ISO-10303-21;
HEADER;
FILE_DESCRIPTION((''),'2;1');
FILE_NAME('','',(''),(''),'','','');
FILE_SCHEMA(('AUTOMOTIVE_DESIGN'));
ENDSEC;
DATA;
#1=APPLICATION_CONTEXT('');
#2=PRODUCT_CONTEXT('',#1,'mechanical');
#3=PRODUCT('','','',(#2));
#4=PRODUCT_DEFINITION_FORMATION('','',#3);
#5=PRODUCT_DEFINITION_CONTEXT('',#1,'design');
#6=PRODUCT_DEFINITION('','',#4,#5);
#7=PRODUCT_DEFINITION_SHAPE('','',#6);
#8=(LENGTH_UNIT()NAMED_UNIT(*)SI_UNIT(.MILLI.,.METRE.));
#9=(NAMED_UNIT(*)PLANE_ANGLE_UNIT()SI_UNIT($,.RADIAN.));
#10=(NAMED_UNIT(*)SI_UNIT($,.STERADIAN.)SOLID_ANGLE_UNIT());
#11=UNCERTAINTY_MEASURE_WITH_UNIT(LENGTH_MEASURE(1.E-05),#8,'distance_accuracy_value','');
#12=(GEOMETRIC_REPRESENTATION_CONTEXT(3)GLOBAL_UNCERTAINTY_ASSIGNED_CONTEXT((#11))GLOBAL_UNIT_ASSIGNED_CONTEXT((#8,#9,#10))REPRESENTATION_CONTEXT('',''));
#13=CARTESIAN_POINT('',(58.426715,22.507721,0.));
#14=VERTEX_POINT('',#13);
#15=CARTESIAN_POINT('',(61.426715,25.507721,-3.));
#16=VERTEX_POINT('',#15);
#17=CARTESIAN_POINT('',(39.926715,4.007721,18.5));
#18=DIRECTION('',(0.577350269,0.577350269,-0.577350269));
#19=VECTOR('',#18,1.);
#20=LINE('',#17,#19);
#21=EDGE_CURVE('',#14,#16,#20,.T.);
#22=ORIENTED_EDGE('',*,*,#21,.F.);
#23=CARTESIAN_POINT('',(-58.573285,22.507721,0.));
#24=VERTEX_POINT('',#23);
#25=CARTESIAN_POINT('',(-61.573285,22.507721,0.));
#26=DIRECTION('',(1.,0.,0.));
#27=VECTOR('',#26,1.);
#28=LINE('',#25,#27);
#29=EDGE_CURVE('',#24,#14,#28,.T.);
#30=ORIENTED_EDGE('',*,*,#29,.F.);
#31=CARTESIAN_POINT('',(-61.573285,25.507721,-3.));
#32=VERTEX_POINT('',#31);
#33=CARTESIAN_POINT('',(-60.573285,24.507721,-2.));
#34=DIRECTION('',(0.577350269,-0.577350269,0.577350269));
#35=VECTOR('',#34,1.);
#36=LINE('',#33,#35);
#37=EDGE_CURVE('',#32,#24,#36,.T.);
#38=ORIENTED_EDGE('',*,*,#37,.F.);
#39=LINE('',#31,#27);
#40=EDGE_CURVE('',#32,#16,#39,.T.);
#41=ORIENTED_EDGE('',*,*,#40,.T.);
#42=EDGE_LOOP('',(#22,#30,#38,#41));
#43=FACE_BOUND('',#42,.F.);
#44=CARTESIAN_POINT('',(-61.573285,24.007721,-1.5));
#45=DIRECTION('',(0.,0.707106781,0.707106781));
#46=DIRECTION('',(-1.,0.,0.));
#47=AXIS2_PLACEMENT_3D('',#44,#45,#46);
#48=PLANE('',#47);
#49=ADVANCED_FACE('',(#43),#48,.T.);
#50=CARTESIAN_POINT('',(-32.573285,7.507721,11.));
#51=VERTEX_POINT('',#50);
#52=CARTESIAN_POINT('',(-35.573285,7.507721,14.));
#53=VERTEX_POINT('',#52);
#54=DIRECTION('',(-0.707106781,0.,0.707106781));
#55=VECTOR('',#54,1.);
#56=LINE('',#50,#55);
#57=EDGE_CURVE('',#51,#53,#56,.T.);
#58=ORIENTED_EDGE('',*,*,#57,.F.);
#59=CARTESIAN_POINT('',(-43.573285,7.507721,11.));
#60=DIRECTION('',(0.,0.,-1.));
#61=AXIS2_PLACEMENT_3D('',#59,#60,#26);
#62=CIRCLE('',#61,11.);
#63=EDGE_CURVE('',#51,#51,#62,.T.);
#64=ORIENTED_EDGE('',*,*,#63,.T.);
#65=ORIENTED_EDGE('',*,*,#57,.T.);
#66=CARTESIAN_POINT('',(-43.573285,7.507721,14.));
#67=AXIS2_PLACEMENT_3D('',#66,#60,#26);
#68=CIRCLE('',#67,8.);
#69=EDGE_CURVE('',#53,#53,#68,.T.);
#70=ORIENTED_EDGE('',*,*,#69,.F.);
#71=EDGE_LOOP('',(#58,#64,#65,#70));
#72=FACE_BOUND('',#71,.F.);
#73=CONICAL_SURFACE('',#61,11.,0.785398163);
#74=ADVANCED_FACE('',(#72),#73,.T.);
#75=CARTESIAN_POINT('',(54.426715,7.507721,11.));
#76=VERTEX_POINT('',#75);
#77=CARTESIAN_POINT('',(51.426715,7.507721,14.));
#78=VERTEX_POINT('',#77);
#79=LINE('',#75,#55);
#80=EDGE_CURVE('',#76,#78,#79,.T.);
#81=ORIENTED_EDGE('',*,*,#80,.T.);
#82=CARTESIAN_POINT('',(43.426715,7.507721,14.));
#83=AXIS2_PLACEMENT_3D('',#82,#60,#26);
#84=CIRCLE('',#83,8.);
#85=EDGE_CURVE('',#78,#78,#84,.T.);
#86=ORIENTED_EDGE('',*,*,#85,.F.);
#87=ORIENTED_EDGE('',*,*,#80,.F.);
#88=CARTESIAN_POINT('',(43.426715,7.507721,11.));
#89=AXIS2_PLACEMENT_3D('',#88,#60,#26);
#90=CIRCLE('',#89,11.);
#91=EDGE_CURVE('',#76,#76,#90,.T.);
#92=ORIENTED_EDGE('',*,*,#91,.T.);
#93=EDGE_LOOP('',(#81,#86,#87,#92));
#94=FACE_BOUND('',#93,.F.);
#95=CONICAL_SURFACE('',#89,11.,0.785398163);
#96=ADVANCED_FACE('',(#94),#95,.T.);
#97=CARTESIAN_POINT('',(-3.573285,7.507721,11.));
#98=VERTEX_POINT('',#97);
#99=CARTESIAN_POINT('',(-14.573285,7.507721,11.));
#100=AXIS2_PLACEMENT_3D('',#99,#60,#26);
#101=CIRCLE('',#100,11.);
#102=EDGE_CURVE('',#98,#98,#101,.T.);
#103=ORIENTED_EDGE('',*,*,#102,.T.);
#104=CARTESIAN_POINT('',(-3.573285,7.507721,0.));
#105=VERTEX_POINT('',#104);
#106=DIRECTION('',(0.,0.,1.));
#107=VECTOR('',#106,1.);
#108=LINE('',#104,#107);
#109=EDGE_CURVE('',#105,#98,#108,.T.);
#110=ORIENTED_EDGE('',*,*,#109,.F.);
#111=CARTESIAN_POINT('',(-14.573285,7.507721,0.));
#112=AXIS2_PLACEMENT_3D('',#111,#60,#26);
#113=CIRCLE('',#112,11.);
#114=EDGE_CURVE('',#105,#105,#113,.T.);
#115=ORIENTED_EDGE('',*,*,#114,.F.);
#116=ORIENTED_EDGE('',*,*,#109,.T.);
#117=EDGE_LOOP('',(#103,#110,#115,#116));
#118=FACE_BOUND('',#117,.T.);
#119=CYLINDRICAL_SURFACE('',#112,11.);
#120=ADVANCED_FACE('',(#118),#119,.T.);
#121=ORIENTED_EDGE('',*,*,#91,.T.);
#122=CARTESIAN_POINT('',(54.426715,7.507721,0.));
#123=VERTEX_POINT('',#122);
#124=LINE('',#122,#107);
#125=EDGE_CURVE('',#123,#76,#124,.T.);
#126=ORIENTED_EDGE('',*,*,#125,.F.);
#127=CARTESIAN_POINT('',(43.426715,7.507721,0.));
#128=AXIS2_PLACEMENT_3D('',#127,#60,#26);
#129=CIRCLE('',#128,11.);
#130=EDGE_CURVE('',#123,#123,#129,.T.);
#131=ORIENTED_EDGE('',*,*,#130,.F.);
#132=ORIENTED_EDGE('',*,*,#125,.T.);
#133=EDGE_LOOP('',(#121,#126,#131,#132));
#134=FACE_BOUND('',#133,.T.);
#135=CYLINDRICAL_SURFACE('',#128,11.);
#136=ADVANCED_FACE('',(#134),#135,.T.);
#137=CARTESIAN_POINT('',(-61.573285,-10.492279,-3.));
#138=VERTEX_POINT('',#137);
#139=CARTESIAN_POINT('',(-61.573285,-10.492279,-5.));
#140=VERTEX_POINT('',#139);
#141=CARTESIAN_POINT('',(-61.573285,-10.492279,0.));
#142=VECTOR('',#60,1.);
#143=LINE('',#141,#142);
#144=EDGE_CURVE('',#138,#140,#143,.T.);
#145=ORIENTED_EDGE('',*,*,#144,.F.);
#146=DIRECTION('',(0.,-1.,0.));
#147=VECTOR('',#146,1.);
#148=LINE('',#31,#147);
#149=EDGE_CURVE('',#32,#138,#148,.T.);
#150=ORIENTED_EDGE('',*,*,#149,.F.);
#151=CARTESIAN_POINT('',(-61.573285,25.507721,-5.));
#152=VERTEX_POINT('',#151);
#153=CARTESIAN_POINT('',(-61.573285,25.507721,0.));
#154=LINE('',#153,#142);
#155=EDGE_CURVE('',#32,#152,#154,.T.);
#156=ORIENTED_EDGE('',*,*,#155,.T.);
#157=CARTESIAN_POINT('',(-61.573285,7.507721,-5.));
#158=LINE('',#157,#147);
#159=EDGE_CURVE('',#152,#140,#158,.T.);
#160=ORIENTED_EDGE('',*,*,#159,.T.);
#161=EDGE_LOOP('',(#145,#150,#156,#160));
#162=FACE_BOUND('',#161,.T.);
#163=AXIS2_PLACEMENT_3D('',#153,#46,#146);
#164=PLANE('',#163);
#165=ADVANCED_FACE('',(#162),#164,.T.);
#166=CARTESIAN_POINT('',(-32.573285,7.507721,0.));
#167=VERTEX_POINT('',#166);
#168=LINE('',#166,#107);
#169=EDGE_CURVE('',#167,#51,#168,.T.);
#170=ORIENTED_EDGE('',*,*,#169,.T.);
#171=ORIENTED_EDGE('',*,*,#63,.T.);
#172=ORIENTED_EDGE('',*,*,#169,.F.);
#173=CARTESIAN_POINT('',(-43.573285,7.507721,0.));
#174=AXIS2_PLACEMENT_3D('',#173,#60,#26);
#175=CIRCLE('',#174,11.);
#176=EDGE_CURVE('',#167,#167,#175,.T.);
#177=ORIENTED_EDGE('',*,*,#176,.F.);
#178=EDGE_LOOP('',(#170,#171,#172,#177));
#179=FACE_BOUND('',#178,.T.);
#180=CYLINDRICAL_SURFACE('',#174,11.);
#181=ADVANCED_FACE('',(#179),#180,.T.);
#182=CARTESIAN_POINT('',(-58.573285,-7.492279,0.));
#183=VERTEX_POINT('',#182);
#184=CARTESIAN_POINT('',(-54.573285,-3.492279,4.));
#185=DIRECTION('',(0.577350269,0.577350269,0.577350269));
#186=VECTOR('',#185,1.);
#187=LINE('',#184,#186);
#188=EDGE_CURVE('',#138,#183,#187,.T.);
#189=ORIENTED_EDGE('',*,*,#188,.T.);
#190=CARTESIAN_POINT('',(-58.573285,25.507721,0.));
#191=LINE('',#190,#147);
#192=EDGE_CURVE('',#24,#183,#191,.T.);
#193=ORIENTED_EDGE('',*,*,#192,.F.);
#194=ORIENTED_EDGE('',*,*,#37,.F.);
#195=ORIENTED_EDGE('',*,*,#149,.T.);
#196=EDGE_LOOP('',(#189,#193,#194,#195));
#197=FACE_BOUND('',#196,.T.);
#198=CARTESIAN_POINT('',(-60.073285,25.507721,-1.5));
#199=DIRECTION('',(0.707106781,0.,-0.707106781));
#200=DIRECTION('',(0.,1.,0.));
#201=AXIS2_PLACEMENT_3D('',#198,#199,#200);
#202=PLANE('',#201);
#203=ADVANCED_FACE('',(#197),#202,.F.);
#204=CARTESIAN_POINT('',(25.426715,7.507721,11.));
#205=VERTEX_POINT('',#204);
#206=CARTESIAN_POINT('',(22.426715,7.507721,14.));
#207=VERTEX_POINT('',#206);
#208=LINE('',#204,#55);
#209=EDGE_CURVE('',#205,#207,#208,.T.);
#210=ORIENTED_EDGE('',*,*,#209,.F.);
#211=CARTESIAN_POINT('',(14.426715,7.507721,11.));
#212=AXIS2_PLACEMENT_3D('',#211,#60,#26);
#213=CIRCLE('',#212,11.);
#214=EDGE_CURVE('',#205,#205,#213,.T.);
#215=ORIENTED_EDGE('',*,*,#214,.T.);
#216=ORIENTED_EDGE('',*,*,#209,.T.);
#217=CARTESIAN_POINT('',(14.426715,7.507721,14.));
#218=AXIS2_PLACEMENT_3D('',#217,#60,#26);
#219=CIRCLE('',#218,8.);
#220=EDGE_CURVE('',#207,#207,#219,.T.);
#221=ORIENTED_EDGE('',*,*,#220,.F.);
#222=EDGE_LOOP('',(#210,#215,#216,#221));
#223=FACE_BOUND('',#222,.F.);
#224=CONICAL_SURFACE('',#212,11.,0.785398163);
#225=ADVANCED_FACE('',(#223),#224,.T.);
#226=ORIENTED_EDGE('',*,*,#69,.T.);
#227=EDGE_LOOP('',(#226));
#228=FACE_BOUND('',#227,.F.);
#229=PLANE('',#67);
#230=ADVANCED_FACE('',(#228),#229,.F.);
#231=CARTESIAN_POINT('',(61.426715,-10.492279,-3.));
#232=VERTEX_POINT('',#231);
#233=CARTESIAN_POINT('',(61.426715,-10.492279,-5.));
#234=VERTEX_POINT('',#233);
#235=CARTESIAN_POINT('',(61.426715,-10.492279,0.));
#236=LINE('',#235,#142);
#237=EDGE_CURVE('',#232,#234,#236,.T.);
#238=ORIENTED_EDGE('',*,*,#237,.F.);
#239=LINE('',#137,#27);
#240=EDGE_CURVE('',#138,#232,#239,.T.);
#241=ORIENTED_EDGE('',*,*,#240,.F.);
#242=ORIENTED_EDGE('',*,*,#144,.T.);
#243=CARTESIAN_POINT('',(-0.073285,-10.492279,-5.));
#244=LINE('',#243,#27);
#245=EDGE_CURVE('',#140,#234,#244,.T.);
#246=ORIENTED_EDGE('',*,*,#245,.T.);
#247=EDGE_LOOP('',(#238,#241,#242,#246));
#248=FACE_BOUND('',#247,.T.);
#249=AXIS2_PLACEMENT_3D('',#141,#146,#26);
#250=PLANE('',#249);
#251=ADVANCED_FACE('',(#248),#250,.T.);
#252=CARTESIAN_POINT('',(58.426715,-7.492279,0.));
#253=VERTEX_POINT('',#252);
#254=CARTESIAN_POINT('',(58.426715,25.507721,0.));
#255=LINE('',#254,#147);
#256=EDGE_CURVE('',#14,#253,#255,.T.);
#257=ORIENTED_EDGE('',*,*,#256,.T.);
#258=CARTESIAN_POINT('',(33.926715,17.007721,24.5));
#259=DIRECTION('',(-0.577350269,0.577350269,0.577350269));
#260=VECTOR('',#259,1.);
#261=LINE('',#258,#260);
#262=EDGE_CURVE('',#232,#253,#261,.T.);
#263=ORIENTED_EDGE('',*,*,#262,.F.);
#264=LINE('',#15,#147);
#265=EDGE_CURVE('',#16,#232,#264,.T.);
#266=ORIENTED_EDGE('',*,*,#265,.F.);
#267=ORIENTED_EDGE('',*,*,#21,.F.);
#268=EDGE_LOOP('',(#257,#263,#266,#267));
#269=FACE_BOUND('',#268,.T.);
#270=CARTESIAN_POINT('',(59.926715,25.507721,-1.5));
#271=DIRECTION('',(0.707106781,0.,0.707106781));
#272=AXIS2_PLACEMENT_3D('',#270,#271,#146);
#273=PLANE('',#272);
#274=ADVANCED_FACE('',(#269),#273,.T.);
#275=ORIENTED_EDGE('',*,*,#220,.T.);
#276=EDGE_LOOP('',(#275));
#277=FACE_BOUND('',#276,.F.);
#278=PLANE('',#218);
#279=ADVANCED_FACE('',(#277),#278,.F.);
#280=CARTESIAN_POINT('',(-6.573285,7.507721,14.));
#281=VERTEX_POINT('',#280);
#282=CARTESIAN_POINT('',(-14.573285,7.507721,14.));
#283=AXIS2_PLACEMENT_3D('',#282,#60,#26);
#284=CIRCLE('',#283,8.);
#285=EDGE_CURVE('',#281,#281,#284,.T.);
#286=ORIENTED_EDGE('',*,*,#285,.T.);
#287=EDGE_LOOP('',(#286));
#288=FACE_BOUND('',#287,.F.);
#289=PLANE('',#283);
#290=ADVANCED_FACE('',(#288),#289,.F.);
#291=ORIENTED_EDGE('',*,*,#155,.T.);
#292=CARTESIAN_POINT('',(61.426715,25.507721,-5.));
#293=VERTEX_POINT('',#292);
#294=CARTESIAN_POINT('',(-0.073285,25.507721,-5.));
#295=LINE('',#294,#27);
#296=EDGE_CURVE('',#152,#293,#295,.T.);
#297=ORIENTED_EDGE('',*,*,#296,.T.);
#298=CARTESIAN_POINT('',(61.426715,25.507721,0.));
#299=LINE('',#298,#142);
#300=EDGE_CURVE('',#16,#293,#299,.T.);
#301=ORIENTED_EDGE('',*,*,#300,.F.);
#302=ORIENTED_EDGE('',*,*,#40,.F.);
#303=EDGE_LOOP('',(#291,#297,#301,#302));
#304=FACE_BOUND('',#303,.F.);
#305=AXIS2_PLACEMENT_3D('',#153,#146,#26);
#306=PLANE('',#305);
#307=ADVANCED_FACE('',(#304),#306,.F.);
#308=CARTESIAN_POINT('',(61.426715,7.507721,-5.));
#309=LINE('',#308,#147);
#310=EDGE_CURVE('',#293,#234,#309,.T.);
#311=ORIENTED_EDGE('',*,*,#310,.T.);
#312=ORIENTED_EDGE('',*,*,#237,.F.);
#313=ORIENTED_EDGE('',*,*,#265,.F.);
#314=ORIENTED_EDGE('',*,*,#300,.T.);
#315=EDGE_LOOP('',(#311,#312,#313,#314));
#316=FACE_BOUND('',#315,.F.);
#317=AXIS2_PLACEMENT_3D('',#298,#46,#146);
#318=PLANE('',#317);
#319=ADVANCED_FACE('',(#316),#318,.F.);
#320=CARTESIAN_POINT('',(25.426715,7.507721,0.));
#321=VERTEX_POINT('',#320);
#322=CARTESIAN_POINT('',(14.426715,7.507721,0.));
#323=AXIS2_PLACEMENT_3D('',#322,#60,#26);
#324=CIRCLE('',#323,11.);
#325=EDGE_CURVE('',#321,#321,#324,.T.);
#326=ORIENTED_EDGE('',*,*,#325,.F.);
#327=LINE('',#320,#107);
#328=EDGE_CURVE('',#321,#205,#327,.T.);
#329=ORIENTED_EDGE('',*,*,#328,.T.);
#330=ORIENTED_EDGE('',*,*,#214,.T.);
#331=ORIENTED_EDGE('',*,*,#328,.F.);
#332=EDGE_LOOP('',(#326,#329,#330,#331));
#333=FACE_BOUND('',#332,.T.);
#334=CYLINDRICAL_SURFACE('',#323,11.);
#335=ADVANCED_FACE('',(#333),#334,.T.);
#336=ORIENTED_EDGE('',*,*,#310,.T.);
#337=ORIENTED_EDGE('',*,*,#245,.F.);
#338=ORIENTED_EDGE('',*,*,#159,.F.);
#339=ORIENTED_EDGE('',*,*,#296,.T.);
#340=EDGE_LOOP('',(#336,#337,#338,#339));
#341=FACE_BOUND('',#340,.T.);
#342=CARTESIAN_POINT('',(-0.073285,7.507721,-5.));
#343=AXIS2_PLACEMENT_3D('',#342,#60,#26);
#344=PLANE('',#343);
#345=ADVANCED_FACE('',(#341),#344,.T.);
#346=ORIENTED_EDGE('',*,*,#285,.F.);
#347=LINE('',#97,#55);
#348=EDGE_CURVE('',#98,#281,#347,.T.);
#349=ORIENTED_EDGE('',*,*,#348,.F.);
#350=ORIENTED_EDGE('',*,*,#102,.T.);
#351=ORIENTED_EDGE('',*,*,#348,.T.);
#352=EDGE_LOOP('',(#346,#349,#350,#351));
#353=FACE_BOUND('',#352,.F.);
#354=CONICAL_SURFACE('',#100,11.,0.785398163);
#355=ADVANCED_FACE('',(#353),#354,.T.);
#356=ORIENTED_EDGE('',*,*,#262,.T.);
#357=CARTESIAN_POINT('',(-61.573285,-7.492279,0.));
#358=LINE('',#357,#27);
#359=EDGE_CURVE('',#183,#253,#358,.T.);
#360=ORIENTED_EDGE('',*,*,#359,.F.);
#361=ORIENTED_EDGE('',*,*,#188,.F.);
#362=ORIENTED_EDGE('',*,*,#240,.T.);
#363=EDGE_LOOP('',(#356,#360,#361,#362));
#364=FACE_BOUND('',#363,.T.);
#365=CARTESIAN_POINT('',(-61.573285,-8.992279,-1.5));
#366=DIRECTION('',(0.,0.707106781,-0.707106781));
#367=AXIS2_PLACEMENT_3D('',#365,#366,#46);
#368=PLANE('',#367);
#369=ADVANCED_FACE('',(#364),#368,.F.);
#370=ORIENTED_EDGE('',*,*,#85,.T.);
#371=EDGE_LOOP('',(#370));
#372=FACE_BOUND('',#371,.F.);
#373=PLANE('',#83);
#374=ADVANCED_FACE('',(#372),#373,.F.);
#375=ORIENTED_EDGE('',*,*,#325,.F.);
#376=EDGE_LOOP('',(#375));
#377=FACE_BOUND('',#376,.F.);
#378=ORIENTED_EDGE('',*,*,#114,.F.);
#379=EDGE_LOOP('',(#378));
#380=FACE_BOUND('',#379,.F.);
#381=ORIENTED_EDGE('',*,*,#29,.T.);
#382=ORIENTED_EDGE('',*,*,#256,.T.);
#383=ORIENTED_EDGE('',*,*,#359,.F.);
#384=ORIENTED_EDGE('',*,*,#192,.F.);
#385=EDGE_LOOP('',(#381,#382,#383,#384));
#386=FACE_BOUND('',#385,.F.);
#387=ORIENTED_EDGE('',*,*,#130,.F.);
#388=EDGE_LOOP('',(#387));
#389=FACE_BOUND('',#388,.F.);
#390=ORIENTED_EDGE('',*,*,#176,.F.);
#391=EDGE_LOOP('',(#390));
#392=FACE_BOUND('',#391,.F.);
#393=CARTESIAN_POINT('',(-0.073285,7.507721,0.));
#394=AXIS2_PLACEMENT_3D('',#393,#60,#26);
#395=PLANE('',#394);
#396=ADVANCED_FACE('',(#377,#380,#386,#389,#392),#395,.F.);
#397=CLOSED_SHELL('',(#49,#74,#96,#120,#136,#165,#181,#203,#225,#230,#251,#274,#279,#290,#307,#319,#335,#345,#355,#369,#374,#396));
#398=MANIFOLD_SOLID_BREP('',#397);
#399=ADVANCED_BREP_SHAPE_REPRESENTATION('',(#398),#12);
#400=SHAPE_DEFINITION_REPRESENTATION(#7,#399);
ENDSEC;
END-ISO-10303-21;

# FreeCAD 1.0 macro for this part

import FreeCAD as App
import Part
import Sketcher
from FreeCAD import Vector


def edges_at(feature, points):
    """Names of the edges that pass closest to the given points."""
    edges = feature.Shape.Edges
    near = lambda p: min(range(len(edges)), key=lambda i: edges[i].distToShape(Part.Vertex(*p))[0])
    return sorted({f"Edge{near(p) + 1}" for p in points})

doc = App.newDocument("Part")
body = doc.addObject("PartDesign::Body", "Body")

# Sketch on XY plane
sketch1 = doc.addObject("Sketcher::SketchObject", "Sketch")
body.addObject(sketch1)
sketch1.AttachmentSupport = (doc.XY_Plane, [""])
sketch1.MapMode = "FlatFace"
sketch1.addGeometry(Part.LineSegment(Vector(-62, 26, 0), Vector(-62, -10, 0)), False)
sketch1.addGeometry(Part.LineSegment(Vector(-62, -10, 0), Vector(61, -10, 0)), False)
sketch1.addGeometry(Part.LineSegment(Vector(61, -10, 0), Vector(61, 26, 0)), False)
sketch1.addGeometry(Part.LineSegment(Vector(61, 26, 0), Vector(-62, 26, 0)), False)
sketch1.addConstraint(Sketcher.Constraint("Coincident", 0, 2, 1, 1))
sketch1.addConstraint(Sketcher.Constraint("Coincident", 1, 2, 2, 1))
sketch1.addConstraint(Sketcher.Constraint("Coincident", 2, 2, 3, 1))
sketch1.addConstraint(Sketcher.Constraint("Coincident", 3, 2, 0, 1))
sketch1.addConstraint(Sketcher.Constraint("Vertical", 0))
sketch1.addConstraint(Sketcher.Constraint("Horizontal", 1))
sketch1.addConstraint(Sketcher.Constraint("Vertical", 2))
sketch1.addConstraint(Sketcher.Constraint("Horizontal", 3))
sketch1.addConstraint(Sketcher.Constraint("DistanceX", 1, 1, 1, 2, 123.0))
sketch1.addConstraint(Sketcher.Constraint("DistanceY", 0, 2, 0, 1, 36.0))
sketch1.addConstraint(Sketcher.Constraint("DistanceY", 0, 2, -1, 1, 10.492279))
sketch1.addConstraint(Sketcher.Constraint("DistanceX", 0, 2, -1, 1, 61.573285))
pad1 = doc.addObject("PartDesign::Pad", "Pad")
body.addObject(pad1)
pad1.Profile = sketch1
pad1.Length = 5

# Sketch on XY plane
sketch2 = doc.addObject("Sketcher::SketchObject", "Sketch001")
body.addObject(sketch2)
sketch2.AttachmentSupport = (doc.XY_Plane, [""])
sketch2.MapMode = "FlatFace"
sketch2.addGeometry(Part.Circle(Vector(-44, 8, 0), Vector(0, 0, 1), 11), False)
sketch2.addGeometry(Part.Circle(Vector(-15, 8, 0), Vector(0, 0, 1), 11), False)
sketch2.addGeometry(Part.Circle(Vector(14, 8, 0), Vector(0, 0, 1), 11), False)
sketch2.addGeometry(Part.Circle(Vector(43, 8, 0), Vector(0, 0, 1), 11), False)
sketch2.addConstraint(Sketcher.Constraint("Equal", 0, 1))
sketch2.addConstraint(Sketcher.Constraint("Equal", 1, 2))
sketch2.addConstraint(Sketcher.Constraint("Equal", 2, 3))
sketch2.addConstraint(Sketcher.Constraint("Horizontal", 0, 3, 1, 3))
sketch2.addConstraint(Sketcher.Constraint("Horizontal", 1, 3, 2, 3))
sketch2.addConstraint(Sketcher.Constraint("Horizontal", 2, 3, 3, 3))
sketch2.addConstraint(Sketcher.Constraint("Diameter", 0, 22.0))
sketch2.addConstraint(Sketcher.Constraint("DistanceX", 0, 3, 1, 3, 29.0))
sketch2.addConstraint(Sketcher.Constraint("DistanceX", 1, 3, 2, 3, 29.0))
sketch2.addConstraint(Sketcher.Constraint("DistanceX", 2, 3, 3, 3, 29.0))
sketch2.addConstraint(Sketcher.Constraint("DistanceY", -1, 1, 0, 3, 7.507721))
sketch2.addConstraint(Sketcher.Constraint("DistanceX", 0, 3, -1, 1, 43.573285))
pad2 = doc.addObject("PartDesign::Pad", "Pad001")
body.addObject(pad2)
pad2.Profile = sketch2
pad2.Length = 14
pad2.Reversed = True
doc.recompute()

chamfer = doc.addObject("PartDesign::Chamfer", "Chamfer")
body.addObject(chamfer)
chamfer.Base = (pad2, edges_at(pad2, [
    (-0.073, 25.508, 0),
    (-61.573, 7.508, 0),
    (61.427, 7.508, 0),
    (-0.073, -10.492, 0),
    (32.427, 7.508, -14),
    (3.427, 7.508, -14),
    (-25.573, 7.508, -14),
    (-54.573, 7.508, -14),
]))
chamfer.Size = 3
body2 = doc.addObject("PartDesign::Body", "Body001")
doc.recompute()

body.Placement = App.Placement(Vector(0, 15.015442, 0), App.Rotation(Vector(1, 0, 0), 180))
boolean = doc.addObject("PartDesign::Boolean", "Boolean")
body2.addObject(boolean)
boolean.Type = "Fuse"
boolean.addObjects([body])

doc.recompute()
